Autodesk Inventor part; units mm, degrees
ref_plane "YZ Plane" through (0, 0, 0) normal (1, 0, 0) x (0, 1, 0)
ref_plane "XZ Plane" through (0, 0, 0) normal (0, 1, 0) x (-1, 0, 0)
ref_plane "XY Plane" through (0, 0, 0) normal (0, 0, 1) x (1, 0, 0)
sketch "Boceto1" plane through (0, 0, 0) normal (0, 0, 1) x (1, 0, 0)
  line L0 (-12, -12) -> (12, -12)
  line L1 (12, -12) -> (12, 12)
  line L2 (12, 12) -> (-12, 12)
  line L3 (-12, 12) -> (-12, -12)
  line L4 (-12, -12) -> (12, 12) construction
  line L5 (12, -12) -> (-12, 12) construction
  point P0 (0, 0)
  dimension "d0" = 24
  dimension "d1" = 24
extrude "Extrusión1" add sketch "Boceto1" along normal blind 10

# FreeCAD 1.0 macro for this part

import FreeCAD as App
import Part
import Sketcher

V = App.Vector
Q = App.Units.Quantity


def add_polygon(sketch, points):
    """Adds a closed chain of lines whose ends are joined by coincident constraints."""
    first, n = sketch.GeometryCount, len(points)
    for a, b in zip(points, points[1:] + points[:1]):
        sketch.addGeometry(Part.LineSegment(App.Vector(*a, 0), App.Vector(*b, 0)), False)
    for i in range(n):
        sketch.addConstraint(Sketcher.Constraint("Coincident", first + i, 2, first + (i + 1) % n, 1))

doc = App.newDocument("Part")
body = doc.addObject("PartDesign::Body", "Body")

# Sketch on XY plane
sketch1 = body.newObject("Sketcher::SketchObject", "Sketch")
sketch1.AttachmentSupport = (doc.getObject("XY_Plane"), [""])
sketch1.MapMode = "FlatFace"
add_polygon(sketch1, [(-12, 12), (-12, -12), (12, -12), (12, 12)])  # lines 0-3
sketch1.addConstraint([
    Sketcher.Constraint("Vertical", 0),
    Sketcher.Constraint("Horizontal", 1),
    Sketcher.Constraint("Vertical", 2),
    Sketcher.Constraint("Horizontal", 3),
    Sketcher.Constraint("Symmetric", 0, 2, 2, 2, -1, 1),
    Sketcher.Constraint("Equal", 3, 0),
    Sketcher.Constraint("DistanceX", 1, 1, 1, 2, Q("24 mm")),
])
pad1 = body.newObject("PartDesign::Pad", "Pad")
pad1.Profile = sketch1
pad1.Length = 10

doc.recompute()
